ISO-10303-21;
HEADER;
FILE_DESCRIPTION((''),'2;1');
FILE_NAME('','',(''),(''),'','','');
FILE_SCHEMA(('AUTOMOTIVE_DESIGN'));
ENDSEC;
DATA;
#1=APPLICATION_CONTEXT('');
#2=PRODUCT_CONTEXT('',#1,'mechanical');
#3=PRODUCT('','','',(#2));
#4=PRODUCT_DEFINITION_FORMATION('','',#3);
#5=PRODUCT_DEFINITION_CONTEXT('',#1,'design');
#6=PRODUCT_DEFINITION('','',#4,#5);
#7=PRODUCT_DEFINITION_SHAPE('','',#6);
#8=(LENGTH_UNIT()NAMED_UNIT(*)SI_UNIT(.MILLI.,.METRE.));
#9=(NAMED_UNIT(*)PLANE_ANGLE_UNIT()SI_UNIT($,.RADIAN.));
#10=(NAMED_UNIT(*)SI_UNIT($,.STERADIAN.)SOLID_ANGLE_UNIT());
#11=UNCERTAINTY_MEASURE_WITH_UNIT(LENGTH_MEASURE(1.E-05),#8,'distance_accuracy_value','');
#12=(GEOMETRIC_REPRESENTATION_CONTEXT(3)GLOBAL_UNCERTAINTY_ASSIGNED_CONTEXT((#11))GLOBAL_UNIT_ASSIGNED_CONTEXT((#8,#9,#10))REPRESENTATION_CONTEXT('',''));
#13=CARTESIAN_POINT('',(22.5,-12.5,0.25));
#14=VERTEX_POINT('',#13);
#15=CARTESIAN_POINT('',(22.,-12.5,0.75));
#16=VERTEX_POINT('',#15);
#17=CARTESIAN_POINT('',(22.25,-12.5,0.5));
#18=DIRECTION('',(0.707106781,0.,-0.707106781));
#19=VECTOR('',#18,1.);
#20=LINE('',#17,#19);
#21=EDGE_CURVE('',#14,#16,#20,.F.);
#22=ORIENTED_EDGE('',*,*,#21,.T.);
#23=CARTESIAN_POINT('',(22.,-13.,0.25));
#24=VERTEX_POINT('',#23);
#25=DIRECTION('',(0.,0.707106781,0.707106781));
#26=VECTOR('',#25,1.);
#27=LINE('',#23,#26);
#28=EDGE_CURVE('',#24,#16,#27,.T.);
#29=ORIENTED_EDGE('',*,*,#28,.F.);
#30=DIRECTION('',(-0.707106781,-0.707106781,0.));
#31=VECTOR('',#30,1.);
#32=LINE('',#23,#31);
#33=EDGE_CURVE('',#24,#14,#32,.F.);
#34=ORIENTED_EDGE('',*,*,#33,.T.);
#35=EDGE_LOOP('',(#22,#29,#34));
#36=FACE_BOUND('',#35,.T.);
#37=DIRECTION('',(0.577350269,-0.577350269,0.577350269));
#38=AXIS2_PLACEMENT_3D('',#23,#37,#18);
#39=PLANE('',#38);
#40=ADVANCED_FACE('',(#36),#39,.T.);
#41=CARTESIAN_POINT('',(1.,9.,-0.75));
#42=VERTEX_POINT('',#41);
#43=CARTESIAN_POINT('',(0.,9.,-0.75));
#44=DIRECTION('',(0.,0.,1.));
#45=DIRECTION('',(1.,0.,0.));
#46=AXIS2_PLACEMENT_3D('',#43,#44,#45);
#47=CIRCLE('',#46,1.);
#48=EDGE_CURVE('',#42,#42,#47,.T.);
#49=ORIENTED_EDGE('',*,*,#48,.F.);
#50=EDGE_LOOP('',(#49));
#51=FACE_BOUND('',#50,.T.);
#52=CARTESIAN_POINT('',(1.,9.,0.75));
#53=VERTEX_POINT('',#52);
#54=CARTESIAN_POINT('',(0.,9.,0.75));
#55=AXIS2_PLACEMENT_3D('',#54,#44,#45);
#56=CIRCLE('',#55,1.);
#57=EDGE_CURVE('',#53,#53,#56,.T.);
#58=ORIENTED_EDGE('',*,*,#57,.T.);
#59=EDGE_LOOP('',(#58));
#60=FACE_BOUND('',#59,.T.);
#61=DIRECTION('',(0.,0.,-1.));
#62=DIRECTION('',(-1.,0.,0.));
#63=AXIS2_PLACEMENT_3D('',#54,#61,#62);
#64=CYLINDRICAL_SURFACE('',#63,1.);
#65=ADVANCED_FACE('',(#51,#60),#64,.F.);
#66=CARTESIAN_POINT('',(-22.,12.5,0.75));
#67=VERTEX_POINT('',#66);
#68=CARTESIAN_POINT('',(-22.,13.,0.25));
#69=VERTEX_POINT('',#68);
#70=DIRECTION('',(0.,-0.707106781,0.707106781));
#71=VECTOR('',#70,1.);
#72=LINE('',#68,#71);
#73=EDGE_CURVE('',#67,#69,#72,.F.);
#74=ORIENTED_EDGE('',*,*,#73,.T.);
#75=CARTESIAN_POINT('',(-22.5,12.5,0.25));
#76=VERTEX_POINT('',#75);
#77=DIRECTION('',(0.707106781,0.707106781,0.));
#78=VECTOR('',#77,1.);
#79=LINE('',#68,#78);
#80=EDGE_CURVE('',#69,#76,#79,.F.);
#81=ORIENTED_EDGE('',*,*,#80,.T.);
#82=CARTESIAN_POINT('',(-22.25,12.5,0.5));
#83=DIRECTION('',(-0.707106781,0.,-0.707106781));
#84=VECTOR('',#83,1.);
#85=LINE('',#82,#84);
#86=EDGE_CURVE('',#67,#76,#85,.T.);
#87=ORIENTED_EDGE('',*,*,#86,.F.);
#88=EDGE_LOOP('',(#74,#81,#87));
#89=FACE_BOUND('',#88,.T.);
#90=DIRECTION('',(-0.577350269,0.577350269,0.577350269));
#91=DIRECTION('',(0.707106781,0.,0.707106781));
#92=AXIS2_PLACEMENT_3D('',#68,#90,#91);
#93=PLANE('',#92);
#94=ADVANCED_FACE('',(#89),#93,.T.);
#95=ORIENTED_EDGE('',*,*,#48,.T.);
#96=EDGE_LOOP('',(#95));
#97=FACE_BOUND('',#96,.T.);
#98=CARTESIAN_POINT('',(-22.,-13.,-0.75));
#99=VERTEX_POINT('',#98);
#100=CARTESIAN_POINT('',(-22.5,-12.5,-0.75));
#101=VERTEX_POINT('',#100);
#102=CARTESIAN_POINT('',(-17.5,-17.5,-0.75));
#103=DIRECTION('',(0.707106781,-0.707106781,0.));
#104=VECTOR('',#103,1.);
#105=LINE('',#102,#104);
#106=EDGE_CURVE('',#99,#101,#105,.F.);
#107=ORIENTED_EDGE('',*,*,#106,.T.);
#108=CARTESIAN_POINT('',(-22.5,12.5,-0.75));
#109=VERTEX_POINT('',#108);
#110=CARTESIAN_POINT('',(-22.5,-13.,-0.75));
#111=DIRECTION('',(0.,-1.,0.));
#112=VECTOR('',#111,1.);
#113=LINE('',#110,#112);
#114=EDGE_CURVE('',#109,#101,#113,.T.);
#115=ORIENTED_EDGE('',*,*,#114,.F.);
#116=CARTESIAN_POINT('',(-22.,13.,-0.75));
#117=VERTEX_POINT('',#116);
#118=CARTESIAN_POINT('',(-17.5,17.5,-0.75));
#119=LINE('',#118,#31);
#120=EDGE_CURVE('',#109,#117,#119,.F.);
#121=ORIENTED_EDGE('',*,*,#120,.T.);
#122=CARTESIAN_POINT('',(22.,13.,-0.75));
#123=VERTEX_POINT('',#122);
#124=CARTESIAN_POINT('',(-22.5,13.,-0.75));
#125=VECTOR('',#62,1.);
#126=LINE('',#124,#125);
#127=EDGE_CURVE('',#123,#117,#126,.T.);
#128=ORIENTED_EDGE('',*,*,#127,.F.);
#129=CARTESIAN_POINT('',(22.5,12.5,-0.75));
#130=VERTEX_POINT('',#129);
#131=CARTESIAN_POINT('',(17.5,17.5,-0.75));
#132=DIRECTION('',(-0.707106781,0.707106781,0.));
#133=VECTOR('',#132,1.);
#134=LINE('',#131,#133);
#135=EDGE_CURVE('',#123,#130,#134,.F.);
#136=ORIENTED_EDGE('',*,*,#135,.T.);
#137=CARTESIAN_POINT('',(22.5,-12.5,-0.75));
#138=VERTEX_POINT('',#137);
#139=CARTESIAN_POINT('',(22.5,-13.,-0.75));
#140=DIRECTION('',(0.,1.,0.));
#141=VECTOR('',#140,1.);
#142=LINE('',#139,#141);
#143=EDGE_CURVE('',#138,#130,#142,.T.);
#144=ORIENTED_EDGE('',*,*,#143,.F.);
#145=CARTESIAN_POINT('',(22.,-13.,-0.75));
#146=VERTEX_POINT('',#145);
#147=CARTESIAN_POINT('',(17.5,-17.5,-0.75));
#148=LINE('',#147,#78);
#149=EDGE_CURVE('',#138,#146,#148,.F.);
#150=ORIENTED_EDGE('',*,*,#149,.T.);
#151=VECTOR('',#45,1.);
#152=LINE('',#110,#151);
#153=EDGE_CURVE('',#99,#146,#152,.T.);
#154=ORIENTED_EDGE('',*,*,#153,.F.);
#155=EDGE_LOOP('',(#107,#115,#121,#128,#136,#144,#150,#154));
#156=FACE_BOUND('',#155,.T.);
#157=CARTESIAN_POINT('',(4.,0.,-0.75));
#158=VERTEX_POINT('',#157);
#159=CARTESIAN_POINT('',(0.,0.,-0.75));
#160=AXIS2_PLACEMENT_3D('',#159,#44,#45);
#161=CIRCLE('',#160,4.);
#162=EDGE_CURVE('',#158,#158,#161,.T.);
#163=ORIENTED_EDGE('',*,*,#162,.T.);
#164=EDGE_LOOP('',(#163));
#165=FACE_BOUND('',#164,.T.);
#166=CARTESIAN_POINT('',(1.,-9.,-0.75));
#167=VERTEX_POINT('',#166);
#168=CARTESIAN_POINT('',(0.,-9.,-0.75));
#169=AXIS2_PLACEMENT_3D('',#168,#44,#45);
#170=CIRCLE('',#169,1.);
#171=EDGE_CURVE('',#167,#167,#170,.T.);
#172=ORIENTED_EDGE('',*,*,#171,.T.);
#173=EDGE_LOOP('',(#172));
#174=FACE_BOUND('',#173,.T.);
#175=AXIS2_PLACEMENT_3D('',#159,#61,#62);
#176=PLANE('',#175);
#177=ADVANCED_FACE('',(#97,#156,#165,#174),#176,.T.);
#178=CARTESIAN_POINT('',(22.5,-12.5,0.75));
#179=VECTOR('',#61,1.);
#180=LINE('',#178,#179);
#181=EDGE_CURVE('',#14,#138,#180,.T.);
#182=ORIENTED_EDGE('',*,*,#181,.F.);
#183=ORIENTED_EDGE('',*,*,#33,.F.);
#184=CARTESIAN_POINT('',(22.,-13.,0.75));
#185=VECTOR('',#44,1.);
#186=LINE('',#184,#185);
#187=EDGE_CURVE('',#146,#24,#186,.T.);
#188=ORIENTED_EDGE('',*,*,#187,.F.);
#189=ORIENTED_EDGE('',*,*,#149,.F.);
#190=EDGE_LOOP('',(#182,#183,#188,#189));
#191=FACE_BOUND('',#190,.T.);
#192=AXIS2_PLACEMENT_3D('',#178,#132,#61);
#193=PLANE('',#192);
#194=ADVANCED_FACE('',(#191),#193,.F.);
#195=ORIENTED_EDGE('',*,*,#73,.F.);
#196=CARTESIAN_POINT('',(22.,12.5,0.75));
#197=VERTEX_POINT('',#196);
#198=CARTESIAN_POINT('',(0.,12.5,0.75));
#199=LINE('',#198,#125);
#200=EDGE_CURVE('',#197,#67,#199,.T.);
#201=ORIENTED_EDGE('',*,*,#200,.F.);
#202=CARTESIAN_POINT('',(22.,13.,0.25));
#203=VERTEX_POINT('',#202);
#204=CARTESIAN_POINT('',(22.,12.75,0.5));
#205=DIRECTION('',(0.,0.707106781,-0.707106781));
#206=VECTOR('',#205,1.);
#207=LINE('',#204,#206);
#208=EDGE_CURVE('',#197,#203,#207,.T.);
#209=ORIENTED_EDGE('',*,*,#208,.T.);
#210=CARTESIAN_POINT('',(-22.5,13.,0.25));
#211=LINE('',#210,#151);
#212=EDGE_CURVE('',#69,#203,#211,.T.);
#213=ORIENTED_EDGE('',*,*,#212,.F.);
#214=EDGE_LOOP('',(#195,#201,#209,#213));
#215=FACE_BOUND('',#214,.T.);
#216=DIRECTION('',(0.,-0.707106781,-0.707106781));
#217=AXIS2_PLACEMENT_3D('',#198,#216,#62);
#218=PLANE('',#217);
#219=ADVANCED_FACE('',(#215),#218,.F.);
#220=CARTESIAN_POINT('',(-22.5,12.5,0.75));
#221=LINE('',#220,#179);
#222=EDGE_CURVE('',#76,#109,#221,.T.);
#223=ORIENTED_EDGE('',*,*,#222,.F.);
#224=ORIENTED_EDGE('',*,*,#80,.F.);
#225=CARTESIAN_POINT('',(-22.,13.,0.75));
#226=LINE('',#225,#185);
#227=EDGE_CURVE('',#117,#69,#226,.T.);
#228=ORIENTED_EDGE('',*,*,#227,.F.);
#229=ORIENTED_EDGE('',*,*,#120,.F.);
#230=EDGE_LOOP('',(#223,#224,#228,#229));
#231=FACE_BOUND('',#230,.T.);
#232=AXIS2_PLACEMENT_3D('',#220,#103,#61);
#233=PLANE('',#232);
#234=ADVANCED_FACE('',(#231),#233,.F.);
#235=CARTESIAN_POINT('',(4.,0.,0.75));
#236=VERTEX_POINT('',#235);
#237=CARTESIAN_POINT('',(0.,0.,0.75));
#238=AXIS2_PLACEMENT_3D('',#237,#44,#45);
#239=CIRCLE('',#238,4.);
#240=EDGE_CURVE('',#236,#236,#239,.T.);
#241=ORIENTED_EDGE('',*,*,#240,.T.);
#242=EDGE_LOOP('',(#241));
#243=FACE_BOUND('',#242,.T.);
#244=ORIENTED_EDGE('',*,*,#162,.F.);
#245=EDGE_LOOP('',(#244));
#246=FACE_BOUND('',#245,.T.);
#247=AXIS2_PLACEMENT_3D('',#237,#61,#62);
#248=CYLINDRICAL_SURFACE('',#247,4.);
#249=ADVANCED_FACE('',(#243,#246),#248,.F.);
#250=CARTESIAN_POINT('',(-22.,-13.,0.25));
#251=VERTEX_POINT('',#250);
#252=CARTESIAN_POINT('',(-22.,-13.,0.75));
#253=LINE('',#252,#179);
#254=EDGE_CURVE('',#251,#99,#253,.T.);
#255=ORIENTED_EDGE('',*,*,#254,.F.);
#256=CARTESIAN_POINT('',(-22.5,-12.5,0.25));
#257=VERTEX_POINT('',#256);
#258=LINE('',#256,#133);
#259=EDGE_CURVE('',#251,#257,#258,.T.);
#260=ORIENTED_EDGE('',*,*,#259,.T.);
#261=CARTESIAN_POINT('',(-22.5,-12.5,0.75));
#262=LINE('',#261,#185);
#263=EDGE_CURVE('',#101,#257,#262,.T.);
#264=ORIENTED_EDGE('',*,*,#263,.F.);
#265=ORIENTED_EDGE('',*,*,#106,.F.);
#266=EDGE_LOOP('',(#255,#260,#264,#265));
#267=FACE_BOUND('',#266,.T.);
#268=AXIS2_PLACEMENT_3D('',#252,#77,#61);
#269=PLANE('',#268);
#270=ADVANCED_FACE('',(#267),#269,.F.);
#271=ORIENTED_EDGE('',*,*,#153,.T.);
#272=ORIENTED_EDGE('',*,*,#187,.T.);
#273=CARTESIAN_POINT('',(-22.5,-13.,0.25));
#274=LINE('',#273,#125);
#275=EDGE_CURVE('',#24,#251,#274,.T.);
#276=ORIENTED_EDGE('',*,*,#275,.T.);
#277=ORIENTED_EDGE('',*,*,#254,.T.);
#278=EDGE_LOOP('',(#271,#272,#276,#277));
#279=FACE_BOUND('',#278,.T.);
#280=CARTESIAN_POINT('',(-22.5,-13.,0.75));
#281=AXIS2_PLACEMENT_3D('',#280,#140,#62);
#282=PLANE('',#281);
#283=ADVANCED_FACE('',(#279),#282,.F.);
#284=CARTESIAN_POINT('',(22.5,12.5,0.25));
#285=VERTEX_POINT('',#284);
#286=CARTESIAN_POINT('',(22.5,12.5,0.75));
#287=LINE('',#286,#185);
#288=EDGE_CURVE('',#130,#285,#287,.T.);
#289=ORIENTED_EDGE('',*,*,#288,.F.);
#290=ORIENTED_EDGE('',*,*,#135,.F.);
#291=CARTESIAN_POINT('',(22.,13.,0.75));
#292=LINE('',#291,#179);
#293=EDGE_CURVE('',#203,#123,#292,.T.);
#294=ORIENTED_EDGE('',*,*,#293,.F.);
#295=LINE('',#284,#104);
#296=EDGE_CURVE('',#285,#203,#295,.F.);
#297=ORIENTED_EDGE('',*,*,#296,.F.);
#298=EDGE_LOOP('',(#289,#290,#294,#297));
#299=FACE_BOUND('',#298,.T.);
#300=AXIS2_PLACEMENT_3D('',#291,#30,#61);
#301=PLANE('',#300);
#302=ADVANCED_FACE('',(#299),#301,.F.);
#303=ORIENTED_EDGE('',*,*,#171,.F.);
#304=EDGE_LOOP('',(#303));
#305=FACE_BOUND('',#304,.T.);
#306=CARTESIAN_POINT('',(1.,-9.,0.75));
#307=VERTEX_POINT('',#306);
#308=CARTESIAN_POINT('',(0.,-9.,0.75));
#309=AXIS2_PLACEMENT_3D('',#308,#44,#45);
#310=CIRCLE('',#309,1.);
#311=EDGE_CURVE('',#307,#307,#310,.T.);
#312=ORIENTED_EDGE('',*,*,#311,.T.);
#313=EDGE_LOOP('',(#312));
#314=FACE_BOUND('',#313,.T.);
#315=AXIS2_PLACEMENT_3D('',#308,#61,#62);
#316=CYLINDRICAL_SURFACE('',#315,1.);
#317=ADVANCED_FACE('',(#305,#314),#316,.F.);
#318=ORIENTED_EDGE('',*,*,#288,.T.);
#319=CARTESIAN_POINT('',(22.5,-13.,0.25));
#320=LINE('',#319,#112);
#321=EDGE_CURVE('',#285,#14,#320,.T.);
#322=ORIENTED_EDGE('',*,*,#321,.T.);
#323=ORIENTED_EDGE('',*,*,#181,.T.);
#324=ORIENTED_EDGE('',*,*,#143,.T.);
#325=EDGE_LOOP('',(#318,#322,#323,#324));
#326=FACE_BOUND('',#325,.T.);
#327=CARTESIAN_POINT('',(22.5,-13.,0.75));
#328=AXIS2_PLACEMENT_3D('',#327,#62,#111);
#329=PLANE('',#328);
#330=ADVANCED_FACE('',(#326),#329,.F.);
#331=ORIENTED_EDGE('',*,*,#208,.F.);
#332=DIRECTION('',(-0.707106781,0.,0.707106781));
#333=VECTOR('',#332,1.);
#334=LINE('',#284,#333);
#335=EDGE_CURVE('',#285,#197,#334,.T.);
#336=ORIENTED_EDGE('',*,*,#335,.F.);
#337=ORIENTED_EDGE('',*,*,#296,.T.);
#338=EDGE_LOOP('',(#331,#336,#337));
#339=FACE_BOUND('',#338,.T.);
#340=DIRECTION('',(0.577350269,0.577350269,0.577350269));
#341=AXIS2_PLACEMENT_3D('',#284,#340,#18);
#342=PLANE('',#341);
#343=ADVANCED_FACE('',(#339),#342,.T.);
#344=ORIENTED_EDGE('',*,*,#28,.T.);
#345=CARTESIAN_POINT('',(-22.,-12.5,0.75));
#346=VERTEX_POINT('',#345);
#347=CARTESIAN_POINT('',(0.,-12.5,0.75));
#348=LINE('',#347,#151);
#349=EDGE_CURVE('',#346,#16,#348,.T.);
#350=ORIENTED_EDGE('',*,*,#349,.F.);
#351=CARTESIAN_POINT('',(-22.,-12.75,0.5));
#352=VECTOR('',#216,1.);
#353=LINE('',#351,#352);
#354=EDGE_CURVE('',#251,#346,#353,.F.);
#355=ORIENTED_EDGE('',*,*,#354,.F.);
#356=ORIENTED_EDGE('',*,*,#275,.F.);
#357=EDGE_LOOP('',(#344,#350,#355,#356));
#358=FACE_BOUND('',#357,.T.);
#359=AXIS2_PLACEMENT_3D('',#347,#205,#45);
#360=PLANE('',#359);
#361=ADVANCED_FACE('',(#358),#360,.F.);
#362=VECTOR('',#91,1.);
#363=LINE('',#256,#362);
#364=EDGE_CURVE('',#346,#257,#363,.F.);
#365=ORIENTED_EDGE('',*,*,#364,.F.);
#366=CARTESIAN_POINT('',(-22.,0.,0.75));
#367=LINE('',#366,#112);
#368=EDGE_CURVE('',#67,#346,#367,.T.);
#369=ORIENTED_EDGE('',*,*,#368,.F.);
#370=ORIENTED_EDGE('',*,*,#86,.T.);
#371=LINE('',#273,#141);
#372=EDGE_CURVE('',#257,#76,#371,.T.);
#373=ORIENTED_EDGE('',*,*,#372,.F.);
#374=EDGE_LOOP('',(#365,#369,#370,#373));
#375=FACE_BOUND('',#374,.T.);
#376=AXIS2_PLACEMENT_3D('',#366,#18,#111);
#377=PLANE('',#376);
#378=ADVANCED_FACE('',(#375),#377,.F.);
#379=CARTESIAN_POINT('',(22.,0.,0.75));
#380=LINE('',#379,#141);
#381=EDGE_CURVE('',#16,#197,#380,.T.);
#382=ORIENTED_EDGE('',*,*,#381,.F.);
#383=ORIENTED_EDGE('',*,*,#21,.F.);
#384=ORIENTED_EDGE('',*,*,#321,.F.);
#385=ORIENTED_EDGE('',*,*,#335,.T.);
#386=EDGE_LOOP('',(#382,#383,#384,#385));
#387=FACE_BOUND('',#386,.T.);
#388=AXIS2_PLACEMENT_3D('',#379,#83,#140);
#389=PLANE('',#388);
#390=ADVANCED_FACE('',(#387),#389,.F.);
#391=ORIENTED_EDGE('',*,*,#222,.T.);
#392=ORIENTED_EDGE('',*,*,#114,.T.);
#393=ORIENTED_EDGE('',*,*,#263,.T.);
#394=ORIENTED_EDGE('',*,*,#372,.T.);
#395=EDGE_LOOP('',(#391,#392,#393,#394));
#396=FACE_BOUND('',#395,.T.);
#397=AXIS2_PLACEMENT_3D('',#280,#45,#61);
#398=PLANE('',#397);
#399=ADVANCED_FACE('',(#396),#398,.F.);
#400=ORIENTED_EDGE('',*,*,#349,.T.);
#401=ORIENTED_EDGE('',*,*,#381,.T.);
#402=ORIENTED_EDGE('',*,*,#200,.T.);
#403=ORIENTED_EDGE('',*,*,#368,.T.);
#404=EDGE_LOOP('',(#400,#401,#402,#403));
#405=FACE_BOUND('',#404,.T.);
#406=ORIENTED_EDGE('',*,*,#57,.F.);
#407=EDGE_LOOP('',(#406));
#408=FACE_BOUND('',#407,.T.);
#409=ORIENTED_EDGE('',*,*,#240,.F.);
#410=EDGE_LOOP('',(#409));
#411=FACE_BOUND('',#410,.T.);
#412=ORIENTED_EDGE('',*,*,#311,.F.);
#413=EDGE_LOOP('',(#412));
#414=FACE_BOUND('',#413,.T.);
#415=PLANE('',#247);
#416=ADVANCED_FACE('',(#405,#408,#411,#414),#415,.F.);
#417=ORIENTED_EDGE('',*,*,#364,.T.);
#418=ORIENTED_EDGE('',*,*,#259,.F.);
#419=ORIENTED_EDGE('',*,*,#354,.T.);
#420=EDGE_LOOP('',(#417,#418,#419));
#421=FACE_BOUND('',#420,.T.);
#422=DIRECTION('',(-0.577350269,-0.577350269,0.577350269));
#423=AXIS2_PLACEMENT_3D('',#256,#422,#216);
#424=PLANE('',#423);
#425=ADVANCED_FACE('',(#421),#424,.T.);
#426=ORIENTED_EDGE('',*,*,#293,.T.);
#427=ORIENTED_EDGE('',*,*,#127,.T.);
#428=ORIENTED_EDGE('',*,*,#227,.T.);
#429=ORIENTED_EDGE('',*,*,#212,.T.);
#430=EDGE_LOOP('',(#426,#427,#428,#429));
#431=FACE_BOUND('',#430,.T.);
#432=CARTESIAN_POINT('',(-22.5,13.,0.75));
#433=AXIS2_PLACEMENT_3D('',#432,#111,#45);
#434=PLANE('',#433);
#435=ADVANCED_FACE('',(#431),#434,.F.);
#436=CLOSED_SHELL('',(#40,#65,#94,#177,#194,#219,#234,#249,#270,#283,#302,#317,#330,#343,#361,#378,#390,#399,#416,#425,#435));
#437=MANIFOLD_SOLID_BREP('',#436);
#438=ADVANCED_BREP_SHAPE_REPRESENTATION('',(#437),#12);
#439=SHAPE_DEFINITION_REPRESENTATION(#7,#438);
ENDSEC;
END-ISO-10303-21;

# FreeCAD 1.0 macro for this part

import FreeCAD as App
import Part
import Sketcher

V = App.Vector
Q = App.Units.Quantity


def edges_at(feature, points):
    """Names of the edges that pass closest to the given points."""
    edges = feature.Shape.Edges
    near = lambda p: min(range(len(edges)), key=lambda i: edges[i].distToShape(Part.Vertex(*p))[0])
    return sorted({f"Edge{near(p) + 1}" for p in points})

doc = App.newDocument("Part")
params = doc.addObject("Spreadsheet::Sheet", "Params")
for row, (alias, value) in enumerate([
    ("sketch1_diameter", "2 mm"),
    ("sketch1_diameter2", "8 mm"),
    ("sketch1_width", "45 mm"),
    ("sketch1_height", "26 mm"),
    ("pad1_length", "1.5 mm"),
    ("chamfer_size", "0.5 mm"),
], start=1):
    params.set(f"A{row}", alias)
    params.set(f"B{row}", "=" + value)
    params.setAlias(f"B{row}", alias)

body = doc.addObject("PartDesign::Body", "Body")

sketch1 = body.newObject("Sketcher::SketchObject", "Sketch")
sketch1.AttachmentSupport = (doc.getObject("XY_Plane"), [""])
sketch1.MapMode = "FlatFace"
sketch1.addGeometry(Part.LineSegment(V(-22.5, 13, 0), V(-22.5, -13, 0)), False)
sketch1.addGeometry(Part.LineSegment(V(-22.5, -13, 0), V(22.5, -13, 0)), False)
sketch1.addGeometry(Part.LineSegment(V(22.5, -13, 0), V(22.5, 13, 0)), False)
sketch1.addGeometry(Part.LineSegment(V(22.5, 13, 0), V(-22.5, 13, 0)), False)
sketch1.addGeometry(Part.Circle(V(0, -9, 0), V(0, 0, 1), 1), False)
sketch1.addGeometry(Part.Circle(V(0, 0, 0), V(0, 0, 1), 4), False)
sketch1.addGeometry(Part.Circle(V(0, 9, 0), V(0, 0, 1), 1), False)
sketch1.addConstraint(Sketcher.Constraint("Coincident", 0, 2, 1, 1))
sketch1.addConstraint(Sketcher.Constraint("Coincident", 1, 2, 2, 1))
sketch1.addConstraint(Sketcher.Constraint("Coincident", 2, 2, 3, 1))
sketch1.addConstraint(Sketcher.Constraint("Coincident", 3, 2, 0, 1))
sketch1.addConstraint(Sketcher.Constraint("Vertical", 0))
sketch1.addConstraint(Sketcher.Constraint("Horizontal", 1))
sketch1.addConstraint(Sketcher.Constraint("Vertical", 2))
sketch1.addConstraint(Sketcher.Constraint("Horizontal", 3))
sketch1.addConstraint(Sketcher.Constraint("Coincident", 5, 3, -1, 1))
sketch1.addConstraint(Sketcher.Constraint("Equal", 4, 6))
sketch1.addConstraint(Sketcher.Constraint("Symmetric", 4, 3, 6, 3, -1, 1))
sketch1.addConstraint(Sketcher.Constraint("Symmetric", 0, 2, 2, 2, -1, 1))
sketch1.addConstraint(Sketcher.Constraint("PointOnObject", 4, 3, -2))
sketch1.addConstraint(Sketcher.Constraint("Diameter", 4, Q("2 mm")))
sketch1.addConstraint(Sketcher.Constraint("Diameter", 5, Q("8 mm")))
sketch1.addConstraint(Sketcher.Constraint("DistanceX", 1, 1, 1, 2, Q("45 mm")))
sketch1.addConstraint(Sketcher.Constraint("DistanceY", 0, 2, 0, 1, Q("26 mm")))
sketch1.addConstraint(Sketcher.Constraint("DistanceY", 4, 3, -1, 1, Q("9 mm")))
sketch1.setExpression("Constraints[13]", "Params.sketch1_diameter")
sketch1.setExpression("Constraints[14]", "Params.sketch1_diameter2")
sketch1.setExpression("Constraints[15]", "Params.sketch1_width")
sketch1.setExpression("Constraints[16]", "Params.sketch1_height")
pad1 = body.newObject("PartDesign::Pad", "Pad")
pad1.Profile = sketch1
pad1.setExpression("Length", "Params.pad1_length")
pad1.Midplane = True
doc.recompute()

chamfer = body.newObject("PartDesign::Chamfer", "Chamfer")
chamfer.Base = (pad1, edges_at(pad1, [
    (-22.5, 0, 0.75),
    (0, -13, 0.75),
    (22.5, 0, 0.75),
    (22.5, -13, 0),
    (-22.5, -13, 0),
    (-22.5, 13, 0),
    (22.5, 13, 0),
    (0, 13, 0.75),
]))
chamfer.setExpression("Size", "Params.chamfer_size")

doc.recompute()
